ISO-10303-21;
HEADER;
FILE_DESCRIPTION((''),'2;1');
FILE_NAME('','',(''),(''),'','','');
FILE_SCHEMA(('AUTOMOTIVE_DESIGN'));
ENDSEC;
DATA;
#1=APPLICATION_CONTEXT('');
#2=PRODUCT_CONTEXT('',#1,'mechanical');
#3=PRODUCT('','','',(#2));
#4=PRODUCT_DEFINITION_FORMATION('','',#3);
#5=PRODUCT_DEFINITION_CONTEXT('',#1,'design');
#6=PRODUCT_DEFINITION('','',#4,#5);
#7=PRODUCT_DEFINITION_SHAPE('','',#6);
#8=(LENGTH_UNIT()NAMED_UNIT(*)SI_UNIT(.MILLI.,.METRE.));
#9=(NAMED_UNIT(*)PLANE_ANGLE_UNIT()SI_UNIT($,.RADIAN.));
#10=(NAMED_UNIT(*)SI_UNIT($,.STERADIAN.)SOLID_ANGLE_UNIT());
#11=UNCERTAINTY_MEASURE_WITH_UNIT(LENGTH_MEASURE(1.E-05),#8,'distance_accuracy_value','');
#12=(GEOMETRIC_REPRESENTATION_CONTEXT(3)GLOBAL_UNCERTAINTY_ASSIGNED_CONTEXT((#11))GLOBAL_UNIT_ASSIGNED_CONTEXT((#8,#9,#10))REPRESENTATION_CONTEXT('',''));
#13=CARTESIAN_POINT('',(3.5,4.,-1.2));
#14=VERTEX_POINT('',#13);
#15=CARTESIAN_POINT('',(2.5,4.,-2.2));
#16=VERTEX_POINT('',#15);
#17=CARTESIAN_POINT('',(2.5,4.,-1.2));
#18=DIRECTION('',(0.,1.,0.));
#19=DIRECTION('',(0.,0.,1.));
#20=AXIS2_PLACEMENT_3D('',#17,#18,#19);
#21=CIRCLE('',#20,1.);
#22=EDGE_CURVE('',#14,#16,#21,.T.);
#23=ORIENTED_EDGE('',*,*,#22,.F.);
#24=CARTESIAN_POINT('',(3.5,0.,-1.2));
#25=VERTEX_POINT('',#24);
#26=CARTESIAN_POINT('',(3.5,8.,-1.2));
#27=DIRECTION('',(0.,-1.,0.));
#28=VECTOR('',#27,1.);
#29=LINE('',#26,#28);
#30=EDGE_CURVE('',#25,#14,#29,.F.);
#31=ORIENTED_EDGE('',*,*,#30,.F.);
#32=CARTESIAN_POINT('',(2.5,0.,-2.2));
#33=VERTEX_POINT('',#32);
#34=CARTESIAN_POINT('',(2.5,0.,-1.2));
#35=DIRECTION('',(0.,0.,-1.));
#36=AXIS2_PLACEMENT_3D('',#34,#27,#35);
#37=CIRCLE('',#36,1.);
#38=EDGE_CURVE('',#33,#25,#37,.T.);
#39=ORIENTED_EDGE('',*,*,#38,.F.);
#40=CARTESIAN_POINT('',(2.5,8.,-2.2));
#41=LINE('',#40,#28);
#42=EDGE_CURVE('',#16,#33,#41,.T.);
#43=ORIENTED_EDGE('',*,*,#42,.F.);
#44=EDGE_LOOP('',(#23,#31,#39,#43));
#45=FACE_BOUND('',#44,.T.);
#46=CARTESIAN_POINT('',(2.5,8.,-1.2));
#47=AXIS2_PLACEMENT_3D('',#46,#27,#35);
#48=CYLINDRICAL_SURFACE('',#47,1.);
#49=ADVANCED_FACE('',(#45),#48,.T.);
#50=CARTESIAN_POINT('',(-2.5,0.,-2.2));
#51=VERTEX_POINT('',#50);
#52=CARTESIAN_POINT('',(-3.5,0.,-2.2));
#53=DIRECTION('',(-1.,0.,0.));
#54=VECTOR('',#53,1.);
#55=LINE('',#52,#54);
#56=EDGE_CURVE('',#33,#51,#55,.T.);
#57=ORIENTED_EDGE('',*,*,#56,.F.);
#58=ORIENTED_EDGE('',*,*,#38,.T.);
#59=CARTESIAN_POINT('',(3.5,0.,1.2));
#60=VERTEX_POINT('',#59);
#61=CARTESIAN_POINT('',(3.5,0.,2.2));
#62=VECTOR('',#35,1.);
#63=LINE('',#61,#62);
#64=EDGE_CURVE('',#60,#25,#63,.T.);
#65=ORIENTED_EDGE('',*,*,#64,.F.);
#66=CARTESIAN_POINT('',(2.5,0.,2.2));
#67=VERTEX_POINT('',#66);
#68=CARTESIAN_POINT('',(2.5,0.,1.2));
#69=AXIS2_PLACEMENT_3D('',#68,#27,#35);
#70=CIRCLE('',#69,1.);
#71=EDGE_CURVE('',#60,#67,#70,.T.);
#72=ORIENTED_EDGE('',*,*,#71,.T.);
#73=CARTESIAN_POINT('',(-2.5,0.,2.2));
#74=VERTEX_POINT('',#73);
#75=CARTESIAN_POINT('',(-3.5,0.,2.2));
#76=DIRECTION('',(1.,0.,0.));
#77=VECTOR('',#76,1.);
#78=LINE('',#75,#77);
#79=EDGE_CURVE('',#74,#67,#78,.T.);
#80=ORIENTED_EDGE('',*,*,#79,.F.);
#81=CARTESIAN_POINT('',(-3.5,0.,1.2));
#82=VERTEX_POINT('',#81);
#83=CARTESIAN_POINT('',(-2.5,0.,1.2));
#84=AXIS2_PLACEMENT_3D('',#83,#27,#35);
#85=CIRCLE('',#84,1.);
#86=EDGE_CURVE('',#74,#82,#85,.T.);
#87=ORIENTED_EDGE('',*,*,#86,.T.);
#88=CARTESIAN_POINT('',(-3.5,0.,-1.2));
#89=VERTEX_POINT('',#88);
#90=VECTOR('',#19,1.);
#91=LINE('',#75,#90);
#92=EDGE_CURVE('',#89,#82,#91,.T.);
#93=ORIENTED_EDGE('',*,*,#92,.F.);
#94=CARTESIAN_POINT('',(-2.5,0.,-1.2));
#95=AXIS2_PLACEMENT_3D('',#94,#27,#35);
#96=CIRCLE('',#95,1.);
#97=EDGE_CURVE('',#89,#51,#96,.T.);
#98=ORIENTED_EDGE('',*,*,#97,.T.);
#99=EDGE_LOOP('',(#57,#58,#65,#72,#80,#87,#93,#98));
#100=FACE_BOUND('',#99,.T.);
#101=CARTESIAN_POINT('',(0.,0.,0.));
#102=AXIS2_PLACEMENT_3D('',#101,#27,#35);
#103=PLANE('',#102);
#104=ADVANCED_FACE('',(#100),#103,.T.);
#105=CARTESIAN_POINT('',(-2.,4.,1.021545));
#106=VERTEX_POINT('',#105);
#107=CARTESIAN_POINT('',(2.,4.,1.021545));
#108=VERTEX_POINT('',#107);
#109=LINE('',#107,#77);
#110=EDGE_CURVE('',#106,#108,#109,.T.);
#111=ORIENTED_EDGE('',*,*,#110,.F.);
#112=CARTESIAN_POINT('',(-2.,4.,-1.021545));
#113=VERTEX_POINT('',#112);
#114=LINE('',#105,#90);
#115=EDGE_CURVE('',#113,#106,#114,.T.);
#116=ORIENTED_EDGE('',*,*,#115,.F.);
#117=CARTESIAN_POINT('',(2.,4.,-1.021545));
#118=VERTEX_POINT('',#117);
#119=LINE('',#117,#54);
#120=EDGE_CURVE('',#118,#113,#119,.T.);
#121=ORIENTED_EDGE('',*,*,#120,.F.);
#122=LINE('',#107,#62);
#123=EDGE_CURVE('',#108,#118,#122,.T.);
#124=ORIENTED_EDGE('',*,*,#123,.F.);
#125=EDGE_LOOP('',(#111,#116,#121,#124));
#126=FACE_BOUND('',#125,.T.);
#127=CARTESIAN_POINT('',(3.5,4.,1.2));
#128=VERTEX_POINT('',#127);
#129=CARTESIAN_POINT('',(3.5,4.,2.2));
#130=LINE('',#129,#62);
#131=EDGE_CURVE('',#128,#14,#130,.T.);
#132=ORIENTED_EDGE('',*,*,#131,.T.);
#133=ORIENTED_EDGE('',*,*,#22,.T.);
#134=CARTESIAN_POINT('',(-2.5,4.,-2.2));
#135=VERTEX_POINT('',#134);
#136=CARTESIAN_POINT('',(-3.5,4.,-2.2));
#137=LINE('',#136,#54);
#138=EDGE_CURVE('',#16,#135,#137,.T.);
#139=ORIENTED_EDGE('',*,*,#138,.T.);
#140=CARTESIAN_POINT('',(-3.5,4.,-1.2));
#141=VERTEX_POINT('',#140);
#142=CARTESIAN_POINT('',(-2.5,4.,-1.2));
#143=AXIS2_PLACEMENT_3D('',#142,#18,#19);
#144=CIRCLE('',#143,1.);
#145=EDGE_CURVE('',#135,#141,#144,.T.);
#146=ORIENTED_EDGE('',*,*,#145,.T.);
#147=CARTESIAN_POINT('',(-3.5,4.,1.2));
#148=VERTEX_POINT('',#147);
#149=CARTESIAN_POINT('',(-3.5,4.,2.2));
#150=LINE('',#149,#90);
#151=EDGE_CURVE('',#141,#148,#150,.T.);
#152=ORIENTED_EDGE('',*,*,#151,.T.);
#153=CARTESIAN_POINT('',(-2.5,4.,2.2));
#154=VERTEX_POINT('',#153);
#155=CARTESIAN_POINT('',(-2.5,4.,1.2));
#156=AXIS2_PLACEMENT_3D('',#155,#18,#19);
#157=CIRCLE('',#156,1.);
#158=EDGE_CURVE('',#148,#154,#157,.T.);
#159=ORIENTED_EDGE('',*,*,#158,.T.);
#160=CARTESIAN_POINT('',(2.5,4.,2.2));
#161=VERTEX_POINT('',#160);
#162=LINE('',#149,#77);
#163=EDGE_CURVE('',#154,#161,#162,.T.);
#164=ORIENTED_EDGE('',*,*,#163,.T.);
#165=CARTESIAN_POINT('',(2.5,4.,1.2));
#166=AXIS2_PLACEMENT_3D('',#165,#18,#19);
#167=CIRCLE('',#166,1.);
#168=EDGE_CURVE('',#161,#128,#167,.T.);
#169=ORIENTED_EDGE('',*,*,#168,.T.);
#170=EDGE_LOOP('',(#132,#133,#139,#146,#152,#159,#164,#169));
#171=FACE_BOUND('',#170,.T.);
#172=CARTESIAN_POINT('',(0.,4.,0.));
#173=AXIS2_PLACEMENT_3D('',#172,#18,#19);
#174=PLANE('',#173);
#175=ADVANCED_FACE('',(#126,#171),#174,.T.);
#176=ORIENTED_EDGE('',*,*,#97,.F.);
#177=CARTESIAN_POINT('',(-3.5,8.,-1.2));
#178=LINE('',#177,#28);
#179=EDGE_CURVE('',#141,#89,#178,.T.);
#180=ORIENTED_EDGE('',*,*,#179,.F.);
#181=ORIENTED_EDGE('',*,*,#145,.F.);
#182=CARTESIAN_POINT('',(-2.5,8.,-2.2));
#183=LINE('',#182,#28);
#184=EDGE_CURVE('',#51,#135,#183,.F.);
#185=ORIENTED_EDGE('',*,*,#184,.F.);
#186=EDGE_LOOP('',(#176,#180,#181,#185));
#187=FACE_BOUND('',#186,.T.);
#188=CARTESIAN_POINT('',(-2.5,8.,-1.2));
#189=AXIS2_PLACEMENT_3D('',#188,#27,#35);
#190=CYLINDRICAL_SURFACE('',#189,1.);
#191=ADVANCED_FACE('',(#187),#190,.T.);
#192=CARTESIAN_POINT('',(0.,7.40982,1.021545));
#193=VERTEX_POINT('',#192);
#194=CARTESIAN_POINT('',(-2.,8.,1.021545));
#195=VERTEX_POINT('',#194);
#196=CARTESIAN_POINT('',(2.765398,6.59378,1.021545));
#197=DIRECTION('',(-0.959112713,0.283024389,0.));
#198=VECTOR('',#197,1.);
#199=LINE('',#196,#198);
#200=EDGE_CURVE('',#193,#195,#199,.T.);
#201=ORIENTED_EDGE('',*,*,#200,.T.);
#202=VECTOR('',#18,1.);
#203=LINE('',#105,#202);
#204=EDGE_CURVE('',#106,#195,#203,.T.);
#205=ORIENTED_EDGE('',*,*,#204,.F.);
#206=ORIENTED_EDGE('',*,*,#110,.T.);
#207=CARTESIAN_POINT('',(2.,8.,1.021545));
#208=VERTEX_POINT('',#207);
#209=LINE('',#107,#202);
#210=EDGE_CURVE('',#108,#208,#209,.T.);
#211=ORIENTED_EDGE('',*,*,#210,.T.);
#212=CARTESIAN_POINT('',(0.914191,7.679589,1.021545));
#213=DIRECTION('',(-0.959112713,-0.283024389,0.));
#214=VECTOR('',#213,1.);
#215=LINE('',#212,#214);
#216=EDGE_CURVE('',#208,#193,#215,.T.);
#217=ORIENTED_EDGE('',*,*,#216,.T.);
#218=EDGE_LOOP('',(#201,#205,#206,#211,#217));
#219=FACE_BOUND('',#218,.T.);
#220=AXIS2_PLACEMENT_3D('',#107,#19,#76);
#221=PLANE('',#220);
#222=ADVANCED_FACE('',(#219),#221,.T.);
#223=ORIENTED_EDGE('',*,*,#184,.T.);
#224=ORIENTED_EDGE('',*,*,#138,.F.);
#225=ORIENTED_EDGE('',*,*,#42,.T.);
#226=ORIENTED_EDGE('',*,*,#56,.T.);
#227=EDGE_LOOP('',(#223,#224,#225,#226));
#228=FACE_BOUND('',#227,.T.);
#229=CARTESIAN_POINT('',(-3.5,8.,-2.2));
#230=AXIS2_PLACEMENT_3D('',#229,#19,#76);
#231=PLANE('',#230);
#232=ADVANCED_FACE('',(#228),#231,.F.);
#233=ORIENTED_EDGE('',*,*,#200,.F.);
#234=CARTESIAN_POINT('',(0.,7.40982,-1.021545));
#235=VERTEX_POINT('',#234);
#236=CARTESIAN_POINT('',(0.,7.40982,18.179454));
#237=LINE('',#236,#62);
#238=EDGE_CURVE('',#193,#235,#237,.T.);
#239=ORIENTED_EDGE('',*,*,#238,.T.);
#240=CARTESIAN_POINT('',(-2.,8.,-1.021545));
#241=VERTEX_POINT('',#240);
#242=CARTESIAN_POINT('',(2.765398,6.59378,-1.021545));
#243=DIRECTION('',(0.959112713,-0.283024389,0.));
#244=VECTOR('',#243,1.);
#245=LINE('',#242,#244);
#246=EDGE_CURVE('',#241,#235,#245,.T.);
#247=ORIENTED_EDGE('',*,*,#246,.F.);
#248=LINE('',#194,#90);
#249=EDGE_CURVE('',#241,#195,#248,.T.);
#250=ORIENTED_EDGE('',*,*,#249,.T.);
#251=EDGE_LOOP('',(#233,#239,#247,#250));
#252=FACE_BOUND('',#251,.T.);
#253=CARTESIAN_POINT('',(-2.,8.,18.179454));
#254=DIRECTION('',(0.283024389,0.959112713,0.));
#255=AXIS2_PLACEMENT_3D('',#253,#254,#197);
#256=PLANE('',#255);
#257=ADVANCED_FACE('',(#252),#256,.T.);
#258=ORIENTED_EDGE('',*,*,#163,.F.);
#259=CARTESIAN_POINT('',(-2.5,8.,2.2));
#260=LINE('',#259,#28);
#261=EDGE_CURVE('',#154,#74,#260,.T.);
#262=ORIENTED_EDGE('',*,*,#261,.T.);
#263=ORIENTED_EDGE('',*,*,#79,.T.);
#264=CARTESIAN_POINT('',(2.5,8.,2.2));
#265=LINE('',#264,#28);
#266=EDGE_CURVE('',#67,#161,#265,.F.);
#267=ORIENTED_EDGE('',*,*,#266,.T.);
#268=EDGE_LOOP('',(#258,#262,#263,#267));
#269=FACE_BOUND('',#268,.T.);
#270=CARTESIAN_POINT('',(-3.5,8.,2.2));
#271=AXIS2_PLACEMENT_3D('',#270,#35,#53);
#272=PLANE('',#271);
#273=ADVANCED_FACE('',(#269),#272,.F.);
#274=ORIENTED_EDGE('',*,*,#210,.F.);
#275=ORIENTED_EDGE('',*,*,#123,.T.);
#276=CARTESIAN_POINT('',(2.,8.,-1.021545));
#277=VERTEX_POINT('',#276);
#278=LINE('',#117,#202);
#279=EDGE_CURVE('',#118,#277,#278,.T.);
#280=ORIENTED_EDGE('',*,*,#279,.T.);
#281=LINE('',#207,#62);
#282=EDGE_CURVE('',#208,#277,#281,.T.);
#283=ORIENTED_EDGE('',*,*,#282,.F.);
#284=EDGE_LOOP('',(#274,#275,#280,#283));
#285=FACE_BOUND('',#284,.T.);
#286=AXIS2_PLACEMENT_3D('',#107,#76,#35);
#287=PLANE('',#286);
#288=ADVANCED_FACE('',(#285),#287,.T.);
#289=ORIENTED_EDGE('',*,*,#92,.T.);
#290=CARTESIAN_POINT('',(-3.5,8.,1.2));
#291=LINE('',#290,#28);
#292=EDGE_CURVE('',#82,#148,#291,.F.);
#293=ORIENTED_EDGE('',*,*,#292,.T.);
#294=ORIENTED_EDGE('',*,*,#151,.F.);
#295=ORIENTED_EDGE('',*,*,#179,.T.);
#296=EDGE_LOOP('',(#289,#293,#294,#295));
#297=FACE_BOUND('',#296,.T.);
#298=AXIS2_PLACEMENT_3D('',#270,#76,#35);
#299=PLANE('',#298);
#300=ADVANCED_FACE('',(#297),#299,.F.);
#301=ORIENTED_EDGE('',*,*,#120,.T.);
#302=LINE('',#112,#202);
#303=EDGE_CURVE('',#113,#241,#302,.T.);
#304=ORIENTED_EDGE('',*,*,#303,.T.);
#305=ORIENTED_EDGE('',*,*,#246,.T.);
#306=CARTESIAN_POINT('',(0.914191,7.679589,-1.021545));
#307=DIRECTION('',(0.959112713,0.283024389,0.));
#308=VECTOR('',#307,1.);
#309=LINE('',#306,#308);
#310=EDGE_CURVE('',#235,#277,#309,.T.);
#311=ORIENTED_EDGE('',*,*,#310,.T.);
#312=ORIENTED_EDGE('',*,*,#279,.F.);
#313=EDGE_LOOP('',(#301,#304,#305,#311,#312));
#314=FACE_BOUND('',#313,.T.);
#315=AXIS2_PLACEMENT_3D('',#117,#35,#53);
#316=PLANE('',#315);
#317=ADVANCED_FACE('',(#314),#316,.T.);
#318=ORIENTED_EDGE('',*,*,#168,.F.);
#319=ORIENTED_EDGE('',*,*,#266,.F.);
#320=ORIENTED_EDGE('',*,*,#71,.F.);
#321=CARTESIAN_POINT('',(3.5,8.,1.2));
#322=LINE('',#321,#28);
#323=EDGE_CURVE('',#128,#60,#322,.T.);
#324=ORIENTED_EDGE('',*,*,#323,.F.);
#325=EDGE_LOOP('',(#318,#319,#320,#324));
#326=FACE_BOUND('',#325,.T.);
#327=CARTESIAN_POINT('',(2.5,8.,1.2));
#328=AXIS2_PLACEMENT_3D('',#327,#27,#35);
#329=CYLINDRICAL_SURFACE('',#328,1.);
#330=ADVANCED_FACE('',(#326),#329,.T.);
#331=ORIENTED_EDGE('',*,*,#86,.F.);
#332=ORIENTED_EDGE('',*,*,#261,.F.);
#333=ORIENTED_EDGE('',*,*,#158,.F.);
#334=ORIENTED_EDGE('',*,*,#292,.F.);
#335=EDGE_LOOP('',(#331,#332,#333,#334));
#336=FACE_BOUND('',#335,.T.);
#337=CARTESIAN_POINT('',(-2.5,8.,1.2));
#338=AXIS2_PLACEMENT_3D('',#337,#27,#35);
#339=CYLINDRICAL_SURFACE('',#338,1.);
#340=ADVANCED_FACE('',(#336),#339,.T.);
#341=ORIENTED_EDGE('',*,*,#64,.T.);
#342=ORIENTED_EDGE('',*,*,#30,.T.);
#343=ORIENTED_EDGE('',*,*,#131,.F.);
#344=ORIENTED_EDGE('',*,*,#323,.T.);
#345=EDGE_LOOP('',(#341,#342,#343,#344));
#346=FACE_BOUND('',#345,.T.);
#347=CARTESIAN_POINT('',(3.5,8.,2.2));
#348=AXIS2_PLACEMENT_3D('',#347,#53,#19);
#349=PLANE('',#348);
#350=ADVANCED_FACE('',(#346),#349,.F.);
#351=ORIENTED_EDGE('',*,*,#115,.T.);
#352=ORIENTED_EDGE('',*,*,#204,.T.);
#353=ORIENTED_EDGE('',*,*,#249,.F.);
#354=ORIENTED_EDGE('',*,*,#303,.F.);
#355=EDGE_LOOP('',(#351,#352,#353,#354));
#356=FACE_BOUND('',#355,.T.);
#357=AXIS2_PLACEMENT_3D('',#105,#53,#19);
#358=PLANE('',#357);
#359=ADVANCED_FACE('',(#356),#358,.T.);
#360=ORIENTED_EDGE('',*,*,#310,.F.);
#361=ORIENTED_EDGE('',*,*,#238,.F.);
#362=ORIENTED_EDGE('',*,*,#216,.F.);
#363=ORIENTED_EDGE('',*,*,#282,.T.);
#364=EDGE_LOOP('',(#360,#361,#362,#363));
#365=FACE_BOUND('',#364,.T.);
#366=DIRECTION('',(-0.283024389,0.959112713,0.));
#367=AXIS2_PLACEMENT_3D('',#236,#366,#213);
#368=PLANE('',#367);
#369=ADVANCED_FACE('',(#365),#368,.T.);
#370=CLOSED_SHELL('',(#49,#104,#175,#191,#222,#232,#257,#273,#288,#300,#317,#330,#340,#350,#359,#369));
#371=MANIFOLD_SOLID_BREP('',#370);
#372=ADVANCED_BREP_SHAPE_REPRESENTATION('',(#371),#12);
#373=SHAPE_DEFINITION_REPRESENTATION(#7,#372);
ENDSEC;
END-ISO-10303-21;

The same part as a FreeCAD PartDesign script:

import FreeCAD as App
import Part
import Sketcher

V = App.Vector
Q = App.Units.Quantity


def edges_at(feature, points):
    """Names of the edges that pass closest to the given points."""
    edges = feature.Shape.Edges
    near = lambda p: min(range(len(edges)), key=lambda i: edges[i].distToShape(Part.Vertex(*p))[0])
    return sorted({f"Edge{near(p) + 1}" for p in points})


def add_polygon(sketch, points):
    """Adds a closed chain of lines whose ends are joined by coincident constraints."""
    first, n = sketch.GeometryCount, len(points)
    for a, b in zip(points, points[1:] + points[:1]):
        sketch.addGeometry(Part.LineSegment(App.Vector(*a, 0), App.Vector(*b, 0)), False)
    for i in range(n):
        sketch.addConstraint(Sketcher.Constraint("Coincident", first + i, 2, first + (i + 1) % n, 1))

doc = App.newDocument("Part")
body = doc.addObject("PartDesign::Body", "Body")

# Sketch on XZ plane
sketch1 = body.newObject("Sketcher::SketchObject", "Sketch")
sketch1.AttachmentSupport = (doc.getObject("XZ_Plane"), [""])
sketch1.MapMode = "FlatFace"
add_polygon(sketch1, [(-3.5, -2.2), (-3.5, 2.2), (3.5, 2.2), (3.5, -2.2)])  # lines 0-3
sketch1.addConstraint(Sketcher.Constraint("Vertical", 0))
sketch1.addConstraint(Sketcher.Constraint("Horizontal", 1))
sketch1.addConstraint(Sketcher.Constraint("Vertical", 2))
sketch1.addConstraint(Sketcher.Constraint("Horizontal", 3))
sketch1.addConstraint(Sketcher.Constraint("Symmetric", 0, 2, 2, 2, -1, 1))
sketch1.addConstraint(Sketcher.Constraint("DistanceX", 1, 1, 1, 2, Q("7 mm")))
sketch1.addConstraint(Sketcher.Constraint("DistanceY", 0, 1, 0, 2, Q("4.4 mm")))
pad1 = body.newObject("PartDesign::Pad", "Pad")
pad1.Profile = sketch1
pad1.Length = 8
pad1.Reversed = True

# Sketch on XZ plane
sketch2 = body.newObject("Sketcher::SketchObject", "Sketch001")
sketch2.AttachmentSupport = (doc.getObject("XZ_Plane"), [""])
sketch2.MapMode = "FlatFace"
sketch2.AttachmentOffset = App.Placement(V(0, 0, -8), App.Rotation())
add_polygon(sketch2, [(-5.65, -4.35), (-5.65, 4.35), (5.65, 4.35), (5.65, -4.35)])  # lines 0-3
add_polygon(sketch2, [(2, 1.021545), (-2, 1.021545), (-2, -1.021545), (2, -1.021545)])  # lines 4-7
sketch2.addConstraint(Sketcher.Constraint("Vertical", 0))
sketch2.addConstraint(Sketcher.Constraint("Horizontal", 1))
sketch2.addConstraint(Sketcher.Constraint("Vertical", 2))
sketch2.addConstraint(Sketcher.Constraint("Horizontal", 3))
sketch2.addConstraint(Sketcher.Constraint("Horizontal", 4))
sketch2.addConstraint(Sketcher.Constraint("Vertical", 5))
sketch2.addConstraint(Sketcher.Constraint("Horizontal", 6))
sketch2.addConstraint(Sketcher.Constraint("Vertical", 7))
sketch2.addConstraint(Sketcher.Constraint("Symmetric", 0, 2, 2, 2, -1, 1))
sketch2.addConstraint(Sketcher.Constraint("Symmetric", 4, 2, 6, 2, -1, 1))
sketch2.addConstraint(Sketcher.Constraint("DistanceX", 4, 2, 4, 1, Q("4 mm")))
sketch2.addConstraint(Sketcher.Constraint("DistanceX", 1, 1, 1, 2, Q("11.3 mm")))
sketch2.addConstraint(Sketcher.Constraint("DistanceY", 0, 1, 0, 2, Q("8.7 mm")))
sketch2.addConstraint(Sketcher.Constraint("DistanceY", 5, 2, 5, 1, Q("2.043091 mm")))
pocket1 = body.newObject("PartDesign::Pocket", "Pocket")
pocket1.Profile = sketch2
pocket1.Length = 4
pocket1.Reversed = True
doc.recompute()

fillet = body.newObject("PartDesign::Fillet", "Fillet")
fillet.Base = (pocket1, edges_at(pocket1, [
    (3.5, 2, 2.2),
    (-3.5, 2, 2.2),
    (-3.5, 2, -2.2),
    (3.5, 2, -2.2),
]))
fillet.Radius = 1

# Sketch on XY plane
sketch3 = body.newObject("Sketcher::SketchObject", "Sketch002")
sketch3.AttachmentSupport = (doc.getObject("XY_Plane"), [""])
sketch3.MapMode = "FlatFace"
sketch3.AttachmentOffset = App.Placement(V(0, 0, 1.021545), App.Rotation())
add_polygon(sketch3, [(-30.213727, 16.325583), (-2, 8), (0, 7.40982), (2, 8), (30.213727, 16.325583), (30.213727, 75.158559), (-30.213727, 75.158559)])  # lines 0-6
sketch3.addConstraint(Sketcher.Constraint("Vertical", 4))
sketch3.addConstraint(Sketcher.Constraint("Horizontal", 5))
sketch3.addConstraint(Sketcher.Constraint("Vertical", 6))
sketch3.addConstraint(Sketcher.Constraint("Symmetric", 0, 2, 2, 2, -2))
sketch3.addConstraint(Sketcher.Constraint("Symmetric", 3, 2, 6, 2, -2))
sketch3.addConstraint(Sketcher.Constraint("PointOnObject", 1, 2, -2))
sketch3.addConstraint(Sketcher.Constraint("Parallel", 0, 1))
sketch3.addConstraint(Sketcher.Constraint("DistanceX", 0, 2, -1, 1, Q("2 mm")))
sketch3.addConstraint(Sketcher.Constraint("DistanceY", -1, 1, 0, 2, Q("8 mm")))
sketch3.addConstraint(Sketcher.Constraint("Distance", 1, Q("2.085261 mm")))
sketch3.addConstraint(Sketcher.Constraint("DistanceX", 5, 2, 5, 1, Q("60.427455 mm")))
sketch3.addConstraint(Sketcher.Constraint("DistanceY", 4, 1, 4, 2, Q("58.832976 mm")))
pocket2 = body.newObject("PartDesign::Pocket", "Pocket001")
pocket2.Profile = sketch3
pocket2.Type = "ThroughAll"
pocket2.Midplane = True

doc.recompute()
